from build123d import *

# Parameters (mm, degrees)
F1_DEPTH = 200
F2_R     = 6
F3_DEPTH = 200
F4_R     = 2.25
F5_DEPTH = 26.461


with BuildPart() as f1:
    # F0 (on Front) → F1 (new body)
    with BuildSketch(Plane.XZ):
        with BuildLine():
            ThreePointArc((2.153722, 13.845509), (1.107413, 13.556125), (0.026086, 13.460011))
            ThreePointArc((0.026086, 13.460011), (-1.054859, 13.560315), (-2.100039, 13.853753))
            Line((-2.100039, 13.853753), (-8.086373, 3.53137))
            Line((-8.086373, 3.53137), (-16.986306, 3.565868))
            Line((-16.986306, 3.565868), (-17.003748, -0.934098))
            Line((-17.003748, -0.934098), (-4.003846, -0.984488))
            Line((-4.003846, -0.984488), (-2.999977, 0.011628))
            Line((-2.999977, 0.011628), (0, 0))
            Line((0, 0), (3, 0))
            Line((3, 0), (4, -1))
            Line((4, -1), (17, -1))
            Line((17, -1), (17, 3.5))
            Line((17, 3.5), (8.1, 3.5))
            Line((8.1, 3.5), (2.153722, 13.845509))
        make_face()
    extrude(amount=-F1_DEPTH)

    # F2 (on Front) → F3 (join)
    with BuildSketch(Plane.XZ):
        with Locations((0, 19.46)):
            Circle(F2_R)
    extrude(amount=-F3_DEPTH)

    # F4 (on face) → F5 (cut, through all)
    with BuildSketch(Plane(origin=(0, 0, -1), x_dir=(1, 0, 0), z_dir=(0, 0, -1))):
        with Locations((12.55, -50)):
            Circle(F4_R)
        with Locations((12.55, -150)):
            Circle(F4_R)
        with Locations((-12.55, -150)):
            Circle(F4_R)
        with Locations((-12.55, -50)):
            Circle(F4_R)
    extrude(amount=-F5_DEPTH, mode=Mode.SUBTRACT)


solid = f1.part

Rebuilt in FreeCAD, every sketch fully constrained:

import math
import FreeCAD as App
import Part
import Sketcher

V = App.Vector
Q = App.Units.Quantity

doc = App.newDocument("Part")
params = doc.addObject("Spreadsheet::Sheet", "Params")
for row, (alias, value) in enumerate([
    ("sketch1_width", "3 mm"),
    ("sketch1_width2", "13 mm"),
    ("sketch1_length", "13 mm"),
    ("sketch1_length2", "3 mm"),
    ("sketch1_width3", "8.9 mm"),
    ("pad1_length", "200 mm"),
    ("sketch2_diameter", "12 mm"),
    ("pad2_length", "200 mm"),
    ("sketch3_diameter", "4.5 mm"),
], start=1):
    params.set(f"A{row}", alias)
    params.set(f"B{row}", "=" + value)
    params.setAlias(f"B{row}", alias)

body = doc.addObject("PartDesign::Body", "Body")

# Sketch on XZ plane
sketch1 = body.newObject("Sketcher::SketchObject", "Sketch")
sketch1.AttachmentSupport = (doc.getObject("XZ_Plane"), [""])
sketch1.MapMode = "FlatFace"
sketch1.addGeometry(Part.ArcOfCircle(Part.Circle(V(0.037708, 19.460026, 0), V(0, 0, 1), 6.000026), math.radians(-90.110985), math.radians(-69.349447)), False)
sketch1.addGeometry(Part.ArcOfCircle(Part.Circle(V(0.037716, 19.459997, 0), V(0, 0, 1), 5.999997), math.radians(-110.872688), math.radians(-90.111056)), False)
sketch1.addGeometry(Part.LineSegment(V(-2.100039, 13.853753, 0), V(-8.086373, 3.53137, 0)), False)
sketch1.addGeometry(Part.LineSegment(V(-8.086373, 3.53137, 0), V(-16.986306, 3.565868, 0)), False)
sketch1.addGeometry(Part.LineSegment(V(-16.986306, 3.565868, 0), V(-17.003748, -0.934098, 0)), False)
sketch1.addGeometry(Part.LineSegment(V(-17.003748, -0.934098, 0), V(-4.003846, -0.984488, 0)), False)
sketch1.addGeometry(Part.LineSegment(V(-4.003846, -0.984488, 0), V(-2.999977, 0.011628, 0)), False)
sketch1.addGeometry(Part.LineSegment(V(-2.999977, 0.011628, 0), V(0, 0, 0)), False)
sketch1.addGeometry(Part.LineSegment(V(0, 0, 0), V(3, 0, 0)), False)
sketch1.addGeometry(Part.LineSegment(V(3, 0, 0), V(4, -1, 0)), False)
sketch1.addGeometry(Part.LineSegment(V(4, -1, 0), V(17, -1, 0)), False)
sketch1.addGeometry(Part.LineSegment(V(17, -1, 0), V(17, 3.5, 0)), False)
sketch1.addGeometry(Part.LineSegment(V(17, 3.5, 0), V(8.1, 3.5, 0)), False)
sketch1.addGeometry(Part.LineSegment(V(8.1, 3.5, 0), V(2.153722, 13.845509, 0)), False)
sketch1.addConstraint(Sketcher.Constraint("Coincident", 0, 1, 1, 2))
sketch1.addConstraint(Sketcher.Constraint("Coincident", 1, 1, 2, 1))
sketch1.addConstraint(Sketcher.Constraint("Coincident", 2, 2, 3, 1))
sketch1.addConstraint(Sketcher.Constraint("Coincident", 3, 2, 4, 1))
sketch1.addConstraint(Sketcher.Constraint("Coincident", 4, 2, 5, 1))
sketch1.addConstraint(Sketcher.Constraint("Coincident", 5, 2, 6, 1))
sketch1.addConstraint(Sketcher.Constraint("Coincident", 6, 2, 7, 1))
sketch1.addConstraint(Sketcher.Constraint("Coincident", 7, 2, 8, 1))
sketch1.addConstraint(Sketcher.Constraint("Coincident", 8, 2, 9, 1))
sketch1.addConstraint(Sketcher.Constraint("Coincident", 9, 2, 10, 1))
sketch1.addConstraint(Sketcher.Constraint("Coincident", 10, 2, 11, 1))
sketch1.addConstraint(Sketcher.Constraint("Coincident", 11, 2, 12, 1))
sketch1.addConstraint(Sketcher.Constraint("Coincident", 12, 2, 13, 1))
sketch1.addConstraint(Sketcher.Constraint("Coincident", 13, 2, 0, 2))
sketch1.addConstraint(Sketcher.Constraint("Horizontal", 8))
sketch1.addConstraint(Sketcher.Constraint("Horizontal", 10))
sketch1.addConstraint(Sketcher.Constraint("Vertical", 11))
sketch1.addConstraint(Sketcher.Constraint("Horizontal", 12))
sketch1.addConstraint(Sketcher.Constraint("Coincident", 7, 2, -1, 1))
sketch1.addConstraint(Sketcher.Constraint("DistanceX", 8, 1, 8, 2, Q("3 mm")))
sketch1.addConstraint(Sketcher.Constraint("DistanceX", 10, 1, 10, 2, Q("13 mm")))
sketch1.addConstraint(Sketcher.Constraint("Distance", 5, Q("13 mm")))
sketch1.addConstraint(Sketcher.Constraint("Distance", 7, Q("3 mm")))
sketch1.addConstraint(Sketcher.Constraint("DistanceX", 12, 2, 12, 1, Q("8.9 mm")))
sketch1.addConstraint(Sketcher.Constraint("DistanceY", 11, 1, 11, 2, Q("4.5 mm")))
sketch1.addConstraint(Sketcher.Constraint("DistanceX", -1, 1, 9, 2, Q("4 mm")))
sketch1.addConstraint(Sketcher.Constraint("DistanceY", 9, 2, -1, 1, Q("1 mm")))
sketch1.addConstraint(Sketcher.Constraint("Distance", 3, Q("8.9 mm")))
sketch1.addConstraint(Sketcher.Constraint("Distance", 4, Q("4.5 mm")))
sketch1.addConstraint(Sketcher.Constraint("Radius", 0, Q("6.000026 mm")))
sketch1.addConstraint(Sketcher.Constraint("Radius", 1, Q("5.999997 mm")))
sketch1.addConstraint(Sketcher.Constraint("DistanceY", 2, 2, 3, 2, Q("0.034498 mm")))
sketch1.addConstraint(Sketcher.Constraint("DistanceY", 5, 2, 0, 1, Q("14.444499 mm")))
sketch1.addConstraint(Sketcher.Constraint("DistanceY", 0, 1, 13, 2, Q("0.385498 mm")))
sketch1.addConstraint(Sketcher.Constraint("DistanceX", -1, 1, 0, 3, Q("0.037708 mm")))
sketch1.addConstraint(Sketcher.Constraint("DistanceY", -1, 1, 0, 1, Q("13.460011 mm")))
sketch1.addConstraint(Sketcher.Constraint("DistanceX", 1, 1, -1, 1, Q("2.100039 mm")))
sketch1.addConstraint(Sketcher.Constraint("DistanceY", -1, 1, 2, 2, Q("3.53137 mm")))
sketch1.addConstraint(Sketcher.Constraint("DistanceX", 4, 2, -1, 1, Q("17.003748 mm")))
sketch1.addConstraint(Sketcher.Constraint("DistanceX", 0, 1, 1, 3, Q("0.01163 mm")))
sketch1.addConstraint(Sketcher.Constraint("DistanceX", 2, 2, 0, 1, Q("8.112459 mm")))
sketch1.addConstraint(Sketcher.Constraint("DistanceX", 2, 2, 0, 3, Q("8.124081 mm")))
sketch1.addConstraint(Sketcher.Constraint("DistanceY", 6, 2, 2, 2, Q("3.519742 mm")))
sketch1.setExpression("Constraints[19]", "Params.sketch1_width")
sketch1.setExpression("Constraints[20]", "Params.sketch1_width2")
sketch1.setExpression("Constraints[21]", "Params.sketch1_length")
sketch1.setExpression("Constraints[22]", "Params.sketch1_length2")
sketch1.setExpression("Constraints[23]", "Params.sketch1_width3")
pad1 = body.newObject("PartDesign::Pad", "Pad")
pad1.Profile = sketch1
pad1.setExpression("Length", "Params.pad1_length")
pad1.Reversed = True

# Sketch on XZ plane
sketch2 = body.newObject("Sketcher::SketchObject", "Sketch001")
sketch2.AttachmentSupport = (doc.getObject("XZ_Plane"), [""])
sketch2.MapMode = "FlatFace"
sketch2.addGeometry(Part.Circle(V(0, 19, 0), V(0, 0, 1), 6), False)
sketch2.addConstraint(Sketcher.Constraint("PointOnObject", 0, 3, -2))
sketch2.addConstraint(Sketcher.Constraint("Diameter", 0, Q("12 mm")))
sketch2.addConstraint(Sketcher.Constraint("DistanceY", -1, 1, 0, 3, Q("19.46 mm")))
sketch2.setExpression("Constraints[1]", "Params.sketch2_diameter")
pad2 = body.newObject("PartDesign::Pad", "Pad001")
pad2.Profile = sketch2
pad2.setExpression("Length", "Params.pad2_length")
pad2.Reversed = True

# Sketch on XY plane
sketch3 = body.newObject("Sketcher::SketchObject", "Sketch002")
sketch3.AttachmentSupport = (doc.getObject("XY_Plane"), [""])
sketch3.MapMode = "FlatFace"
sketch3.AttachmentOffset = App.Placement(V(0, 0, -1), App.Rotation())
sketch3.addGeometry(Part.Circle(V(12.6, 50, 0), V(0, 0, 1), 2.2), False)
sketch3.addGeometry(Part.Circle(V(12.6, 150, 0), V(0, 0, 1), 2.2), False)
sketch3.addGeometry(Part.Circle(V(-12.6, 150, 0), V(0, 0, 1), 2.2), False)
sketch3.addGeometry(Part.Circle(V(-12.6, 50, 0), V(0, 0, 1), 2.2), False)
sketch3.addConstraint(Sketcher.Constraint("Equal", 0, 1))
sketch3.addConstraint(Sketcher.Constraint("Equal", 1, 2))
sketch3.addConstraint(Sketcher.Constraint("Equal", 2, 3))
sketch3.addConstraint(Sketcher.Constraint("Symmetric", 1, 3, 2, 3, -2))
sketch3.addConstraint(Sketcher.Constraint("Symmetric", 0, 3, 3, 3, -2))
sketch3.addConstraint(Sketcher.Constraint("Vertical", 0, 3, 1, 3))
sketch3.addConstraint(Sketcher.Constraint("Diameter", 0, Q("4.5 mm")))
sketch3.addConstraint(Sketcher.Constraint("DistanceY", -1, 1, 0, 3, Q("50 mm")))
sketch3.addConstraint(Sketcher.Constraint("DistanceY", -1, 1, 1, 3, Q("150 mm")))
sketch3.addConstraint(Sketcher.Constraint("DistanceX", 2, 3, 1, 3, Q("25.1 mm")))
sketch3.setExpression("Constraints[6]", "Params.sketch3_diameter")
pocket1 = body.newObject("PartDesign::Pocket", "Pocket")
pocket1.Profile = sketch3
pocket1.Type = "ThroughAll"
pocket1.Reversed = True

doc.recompute()
